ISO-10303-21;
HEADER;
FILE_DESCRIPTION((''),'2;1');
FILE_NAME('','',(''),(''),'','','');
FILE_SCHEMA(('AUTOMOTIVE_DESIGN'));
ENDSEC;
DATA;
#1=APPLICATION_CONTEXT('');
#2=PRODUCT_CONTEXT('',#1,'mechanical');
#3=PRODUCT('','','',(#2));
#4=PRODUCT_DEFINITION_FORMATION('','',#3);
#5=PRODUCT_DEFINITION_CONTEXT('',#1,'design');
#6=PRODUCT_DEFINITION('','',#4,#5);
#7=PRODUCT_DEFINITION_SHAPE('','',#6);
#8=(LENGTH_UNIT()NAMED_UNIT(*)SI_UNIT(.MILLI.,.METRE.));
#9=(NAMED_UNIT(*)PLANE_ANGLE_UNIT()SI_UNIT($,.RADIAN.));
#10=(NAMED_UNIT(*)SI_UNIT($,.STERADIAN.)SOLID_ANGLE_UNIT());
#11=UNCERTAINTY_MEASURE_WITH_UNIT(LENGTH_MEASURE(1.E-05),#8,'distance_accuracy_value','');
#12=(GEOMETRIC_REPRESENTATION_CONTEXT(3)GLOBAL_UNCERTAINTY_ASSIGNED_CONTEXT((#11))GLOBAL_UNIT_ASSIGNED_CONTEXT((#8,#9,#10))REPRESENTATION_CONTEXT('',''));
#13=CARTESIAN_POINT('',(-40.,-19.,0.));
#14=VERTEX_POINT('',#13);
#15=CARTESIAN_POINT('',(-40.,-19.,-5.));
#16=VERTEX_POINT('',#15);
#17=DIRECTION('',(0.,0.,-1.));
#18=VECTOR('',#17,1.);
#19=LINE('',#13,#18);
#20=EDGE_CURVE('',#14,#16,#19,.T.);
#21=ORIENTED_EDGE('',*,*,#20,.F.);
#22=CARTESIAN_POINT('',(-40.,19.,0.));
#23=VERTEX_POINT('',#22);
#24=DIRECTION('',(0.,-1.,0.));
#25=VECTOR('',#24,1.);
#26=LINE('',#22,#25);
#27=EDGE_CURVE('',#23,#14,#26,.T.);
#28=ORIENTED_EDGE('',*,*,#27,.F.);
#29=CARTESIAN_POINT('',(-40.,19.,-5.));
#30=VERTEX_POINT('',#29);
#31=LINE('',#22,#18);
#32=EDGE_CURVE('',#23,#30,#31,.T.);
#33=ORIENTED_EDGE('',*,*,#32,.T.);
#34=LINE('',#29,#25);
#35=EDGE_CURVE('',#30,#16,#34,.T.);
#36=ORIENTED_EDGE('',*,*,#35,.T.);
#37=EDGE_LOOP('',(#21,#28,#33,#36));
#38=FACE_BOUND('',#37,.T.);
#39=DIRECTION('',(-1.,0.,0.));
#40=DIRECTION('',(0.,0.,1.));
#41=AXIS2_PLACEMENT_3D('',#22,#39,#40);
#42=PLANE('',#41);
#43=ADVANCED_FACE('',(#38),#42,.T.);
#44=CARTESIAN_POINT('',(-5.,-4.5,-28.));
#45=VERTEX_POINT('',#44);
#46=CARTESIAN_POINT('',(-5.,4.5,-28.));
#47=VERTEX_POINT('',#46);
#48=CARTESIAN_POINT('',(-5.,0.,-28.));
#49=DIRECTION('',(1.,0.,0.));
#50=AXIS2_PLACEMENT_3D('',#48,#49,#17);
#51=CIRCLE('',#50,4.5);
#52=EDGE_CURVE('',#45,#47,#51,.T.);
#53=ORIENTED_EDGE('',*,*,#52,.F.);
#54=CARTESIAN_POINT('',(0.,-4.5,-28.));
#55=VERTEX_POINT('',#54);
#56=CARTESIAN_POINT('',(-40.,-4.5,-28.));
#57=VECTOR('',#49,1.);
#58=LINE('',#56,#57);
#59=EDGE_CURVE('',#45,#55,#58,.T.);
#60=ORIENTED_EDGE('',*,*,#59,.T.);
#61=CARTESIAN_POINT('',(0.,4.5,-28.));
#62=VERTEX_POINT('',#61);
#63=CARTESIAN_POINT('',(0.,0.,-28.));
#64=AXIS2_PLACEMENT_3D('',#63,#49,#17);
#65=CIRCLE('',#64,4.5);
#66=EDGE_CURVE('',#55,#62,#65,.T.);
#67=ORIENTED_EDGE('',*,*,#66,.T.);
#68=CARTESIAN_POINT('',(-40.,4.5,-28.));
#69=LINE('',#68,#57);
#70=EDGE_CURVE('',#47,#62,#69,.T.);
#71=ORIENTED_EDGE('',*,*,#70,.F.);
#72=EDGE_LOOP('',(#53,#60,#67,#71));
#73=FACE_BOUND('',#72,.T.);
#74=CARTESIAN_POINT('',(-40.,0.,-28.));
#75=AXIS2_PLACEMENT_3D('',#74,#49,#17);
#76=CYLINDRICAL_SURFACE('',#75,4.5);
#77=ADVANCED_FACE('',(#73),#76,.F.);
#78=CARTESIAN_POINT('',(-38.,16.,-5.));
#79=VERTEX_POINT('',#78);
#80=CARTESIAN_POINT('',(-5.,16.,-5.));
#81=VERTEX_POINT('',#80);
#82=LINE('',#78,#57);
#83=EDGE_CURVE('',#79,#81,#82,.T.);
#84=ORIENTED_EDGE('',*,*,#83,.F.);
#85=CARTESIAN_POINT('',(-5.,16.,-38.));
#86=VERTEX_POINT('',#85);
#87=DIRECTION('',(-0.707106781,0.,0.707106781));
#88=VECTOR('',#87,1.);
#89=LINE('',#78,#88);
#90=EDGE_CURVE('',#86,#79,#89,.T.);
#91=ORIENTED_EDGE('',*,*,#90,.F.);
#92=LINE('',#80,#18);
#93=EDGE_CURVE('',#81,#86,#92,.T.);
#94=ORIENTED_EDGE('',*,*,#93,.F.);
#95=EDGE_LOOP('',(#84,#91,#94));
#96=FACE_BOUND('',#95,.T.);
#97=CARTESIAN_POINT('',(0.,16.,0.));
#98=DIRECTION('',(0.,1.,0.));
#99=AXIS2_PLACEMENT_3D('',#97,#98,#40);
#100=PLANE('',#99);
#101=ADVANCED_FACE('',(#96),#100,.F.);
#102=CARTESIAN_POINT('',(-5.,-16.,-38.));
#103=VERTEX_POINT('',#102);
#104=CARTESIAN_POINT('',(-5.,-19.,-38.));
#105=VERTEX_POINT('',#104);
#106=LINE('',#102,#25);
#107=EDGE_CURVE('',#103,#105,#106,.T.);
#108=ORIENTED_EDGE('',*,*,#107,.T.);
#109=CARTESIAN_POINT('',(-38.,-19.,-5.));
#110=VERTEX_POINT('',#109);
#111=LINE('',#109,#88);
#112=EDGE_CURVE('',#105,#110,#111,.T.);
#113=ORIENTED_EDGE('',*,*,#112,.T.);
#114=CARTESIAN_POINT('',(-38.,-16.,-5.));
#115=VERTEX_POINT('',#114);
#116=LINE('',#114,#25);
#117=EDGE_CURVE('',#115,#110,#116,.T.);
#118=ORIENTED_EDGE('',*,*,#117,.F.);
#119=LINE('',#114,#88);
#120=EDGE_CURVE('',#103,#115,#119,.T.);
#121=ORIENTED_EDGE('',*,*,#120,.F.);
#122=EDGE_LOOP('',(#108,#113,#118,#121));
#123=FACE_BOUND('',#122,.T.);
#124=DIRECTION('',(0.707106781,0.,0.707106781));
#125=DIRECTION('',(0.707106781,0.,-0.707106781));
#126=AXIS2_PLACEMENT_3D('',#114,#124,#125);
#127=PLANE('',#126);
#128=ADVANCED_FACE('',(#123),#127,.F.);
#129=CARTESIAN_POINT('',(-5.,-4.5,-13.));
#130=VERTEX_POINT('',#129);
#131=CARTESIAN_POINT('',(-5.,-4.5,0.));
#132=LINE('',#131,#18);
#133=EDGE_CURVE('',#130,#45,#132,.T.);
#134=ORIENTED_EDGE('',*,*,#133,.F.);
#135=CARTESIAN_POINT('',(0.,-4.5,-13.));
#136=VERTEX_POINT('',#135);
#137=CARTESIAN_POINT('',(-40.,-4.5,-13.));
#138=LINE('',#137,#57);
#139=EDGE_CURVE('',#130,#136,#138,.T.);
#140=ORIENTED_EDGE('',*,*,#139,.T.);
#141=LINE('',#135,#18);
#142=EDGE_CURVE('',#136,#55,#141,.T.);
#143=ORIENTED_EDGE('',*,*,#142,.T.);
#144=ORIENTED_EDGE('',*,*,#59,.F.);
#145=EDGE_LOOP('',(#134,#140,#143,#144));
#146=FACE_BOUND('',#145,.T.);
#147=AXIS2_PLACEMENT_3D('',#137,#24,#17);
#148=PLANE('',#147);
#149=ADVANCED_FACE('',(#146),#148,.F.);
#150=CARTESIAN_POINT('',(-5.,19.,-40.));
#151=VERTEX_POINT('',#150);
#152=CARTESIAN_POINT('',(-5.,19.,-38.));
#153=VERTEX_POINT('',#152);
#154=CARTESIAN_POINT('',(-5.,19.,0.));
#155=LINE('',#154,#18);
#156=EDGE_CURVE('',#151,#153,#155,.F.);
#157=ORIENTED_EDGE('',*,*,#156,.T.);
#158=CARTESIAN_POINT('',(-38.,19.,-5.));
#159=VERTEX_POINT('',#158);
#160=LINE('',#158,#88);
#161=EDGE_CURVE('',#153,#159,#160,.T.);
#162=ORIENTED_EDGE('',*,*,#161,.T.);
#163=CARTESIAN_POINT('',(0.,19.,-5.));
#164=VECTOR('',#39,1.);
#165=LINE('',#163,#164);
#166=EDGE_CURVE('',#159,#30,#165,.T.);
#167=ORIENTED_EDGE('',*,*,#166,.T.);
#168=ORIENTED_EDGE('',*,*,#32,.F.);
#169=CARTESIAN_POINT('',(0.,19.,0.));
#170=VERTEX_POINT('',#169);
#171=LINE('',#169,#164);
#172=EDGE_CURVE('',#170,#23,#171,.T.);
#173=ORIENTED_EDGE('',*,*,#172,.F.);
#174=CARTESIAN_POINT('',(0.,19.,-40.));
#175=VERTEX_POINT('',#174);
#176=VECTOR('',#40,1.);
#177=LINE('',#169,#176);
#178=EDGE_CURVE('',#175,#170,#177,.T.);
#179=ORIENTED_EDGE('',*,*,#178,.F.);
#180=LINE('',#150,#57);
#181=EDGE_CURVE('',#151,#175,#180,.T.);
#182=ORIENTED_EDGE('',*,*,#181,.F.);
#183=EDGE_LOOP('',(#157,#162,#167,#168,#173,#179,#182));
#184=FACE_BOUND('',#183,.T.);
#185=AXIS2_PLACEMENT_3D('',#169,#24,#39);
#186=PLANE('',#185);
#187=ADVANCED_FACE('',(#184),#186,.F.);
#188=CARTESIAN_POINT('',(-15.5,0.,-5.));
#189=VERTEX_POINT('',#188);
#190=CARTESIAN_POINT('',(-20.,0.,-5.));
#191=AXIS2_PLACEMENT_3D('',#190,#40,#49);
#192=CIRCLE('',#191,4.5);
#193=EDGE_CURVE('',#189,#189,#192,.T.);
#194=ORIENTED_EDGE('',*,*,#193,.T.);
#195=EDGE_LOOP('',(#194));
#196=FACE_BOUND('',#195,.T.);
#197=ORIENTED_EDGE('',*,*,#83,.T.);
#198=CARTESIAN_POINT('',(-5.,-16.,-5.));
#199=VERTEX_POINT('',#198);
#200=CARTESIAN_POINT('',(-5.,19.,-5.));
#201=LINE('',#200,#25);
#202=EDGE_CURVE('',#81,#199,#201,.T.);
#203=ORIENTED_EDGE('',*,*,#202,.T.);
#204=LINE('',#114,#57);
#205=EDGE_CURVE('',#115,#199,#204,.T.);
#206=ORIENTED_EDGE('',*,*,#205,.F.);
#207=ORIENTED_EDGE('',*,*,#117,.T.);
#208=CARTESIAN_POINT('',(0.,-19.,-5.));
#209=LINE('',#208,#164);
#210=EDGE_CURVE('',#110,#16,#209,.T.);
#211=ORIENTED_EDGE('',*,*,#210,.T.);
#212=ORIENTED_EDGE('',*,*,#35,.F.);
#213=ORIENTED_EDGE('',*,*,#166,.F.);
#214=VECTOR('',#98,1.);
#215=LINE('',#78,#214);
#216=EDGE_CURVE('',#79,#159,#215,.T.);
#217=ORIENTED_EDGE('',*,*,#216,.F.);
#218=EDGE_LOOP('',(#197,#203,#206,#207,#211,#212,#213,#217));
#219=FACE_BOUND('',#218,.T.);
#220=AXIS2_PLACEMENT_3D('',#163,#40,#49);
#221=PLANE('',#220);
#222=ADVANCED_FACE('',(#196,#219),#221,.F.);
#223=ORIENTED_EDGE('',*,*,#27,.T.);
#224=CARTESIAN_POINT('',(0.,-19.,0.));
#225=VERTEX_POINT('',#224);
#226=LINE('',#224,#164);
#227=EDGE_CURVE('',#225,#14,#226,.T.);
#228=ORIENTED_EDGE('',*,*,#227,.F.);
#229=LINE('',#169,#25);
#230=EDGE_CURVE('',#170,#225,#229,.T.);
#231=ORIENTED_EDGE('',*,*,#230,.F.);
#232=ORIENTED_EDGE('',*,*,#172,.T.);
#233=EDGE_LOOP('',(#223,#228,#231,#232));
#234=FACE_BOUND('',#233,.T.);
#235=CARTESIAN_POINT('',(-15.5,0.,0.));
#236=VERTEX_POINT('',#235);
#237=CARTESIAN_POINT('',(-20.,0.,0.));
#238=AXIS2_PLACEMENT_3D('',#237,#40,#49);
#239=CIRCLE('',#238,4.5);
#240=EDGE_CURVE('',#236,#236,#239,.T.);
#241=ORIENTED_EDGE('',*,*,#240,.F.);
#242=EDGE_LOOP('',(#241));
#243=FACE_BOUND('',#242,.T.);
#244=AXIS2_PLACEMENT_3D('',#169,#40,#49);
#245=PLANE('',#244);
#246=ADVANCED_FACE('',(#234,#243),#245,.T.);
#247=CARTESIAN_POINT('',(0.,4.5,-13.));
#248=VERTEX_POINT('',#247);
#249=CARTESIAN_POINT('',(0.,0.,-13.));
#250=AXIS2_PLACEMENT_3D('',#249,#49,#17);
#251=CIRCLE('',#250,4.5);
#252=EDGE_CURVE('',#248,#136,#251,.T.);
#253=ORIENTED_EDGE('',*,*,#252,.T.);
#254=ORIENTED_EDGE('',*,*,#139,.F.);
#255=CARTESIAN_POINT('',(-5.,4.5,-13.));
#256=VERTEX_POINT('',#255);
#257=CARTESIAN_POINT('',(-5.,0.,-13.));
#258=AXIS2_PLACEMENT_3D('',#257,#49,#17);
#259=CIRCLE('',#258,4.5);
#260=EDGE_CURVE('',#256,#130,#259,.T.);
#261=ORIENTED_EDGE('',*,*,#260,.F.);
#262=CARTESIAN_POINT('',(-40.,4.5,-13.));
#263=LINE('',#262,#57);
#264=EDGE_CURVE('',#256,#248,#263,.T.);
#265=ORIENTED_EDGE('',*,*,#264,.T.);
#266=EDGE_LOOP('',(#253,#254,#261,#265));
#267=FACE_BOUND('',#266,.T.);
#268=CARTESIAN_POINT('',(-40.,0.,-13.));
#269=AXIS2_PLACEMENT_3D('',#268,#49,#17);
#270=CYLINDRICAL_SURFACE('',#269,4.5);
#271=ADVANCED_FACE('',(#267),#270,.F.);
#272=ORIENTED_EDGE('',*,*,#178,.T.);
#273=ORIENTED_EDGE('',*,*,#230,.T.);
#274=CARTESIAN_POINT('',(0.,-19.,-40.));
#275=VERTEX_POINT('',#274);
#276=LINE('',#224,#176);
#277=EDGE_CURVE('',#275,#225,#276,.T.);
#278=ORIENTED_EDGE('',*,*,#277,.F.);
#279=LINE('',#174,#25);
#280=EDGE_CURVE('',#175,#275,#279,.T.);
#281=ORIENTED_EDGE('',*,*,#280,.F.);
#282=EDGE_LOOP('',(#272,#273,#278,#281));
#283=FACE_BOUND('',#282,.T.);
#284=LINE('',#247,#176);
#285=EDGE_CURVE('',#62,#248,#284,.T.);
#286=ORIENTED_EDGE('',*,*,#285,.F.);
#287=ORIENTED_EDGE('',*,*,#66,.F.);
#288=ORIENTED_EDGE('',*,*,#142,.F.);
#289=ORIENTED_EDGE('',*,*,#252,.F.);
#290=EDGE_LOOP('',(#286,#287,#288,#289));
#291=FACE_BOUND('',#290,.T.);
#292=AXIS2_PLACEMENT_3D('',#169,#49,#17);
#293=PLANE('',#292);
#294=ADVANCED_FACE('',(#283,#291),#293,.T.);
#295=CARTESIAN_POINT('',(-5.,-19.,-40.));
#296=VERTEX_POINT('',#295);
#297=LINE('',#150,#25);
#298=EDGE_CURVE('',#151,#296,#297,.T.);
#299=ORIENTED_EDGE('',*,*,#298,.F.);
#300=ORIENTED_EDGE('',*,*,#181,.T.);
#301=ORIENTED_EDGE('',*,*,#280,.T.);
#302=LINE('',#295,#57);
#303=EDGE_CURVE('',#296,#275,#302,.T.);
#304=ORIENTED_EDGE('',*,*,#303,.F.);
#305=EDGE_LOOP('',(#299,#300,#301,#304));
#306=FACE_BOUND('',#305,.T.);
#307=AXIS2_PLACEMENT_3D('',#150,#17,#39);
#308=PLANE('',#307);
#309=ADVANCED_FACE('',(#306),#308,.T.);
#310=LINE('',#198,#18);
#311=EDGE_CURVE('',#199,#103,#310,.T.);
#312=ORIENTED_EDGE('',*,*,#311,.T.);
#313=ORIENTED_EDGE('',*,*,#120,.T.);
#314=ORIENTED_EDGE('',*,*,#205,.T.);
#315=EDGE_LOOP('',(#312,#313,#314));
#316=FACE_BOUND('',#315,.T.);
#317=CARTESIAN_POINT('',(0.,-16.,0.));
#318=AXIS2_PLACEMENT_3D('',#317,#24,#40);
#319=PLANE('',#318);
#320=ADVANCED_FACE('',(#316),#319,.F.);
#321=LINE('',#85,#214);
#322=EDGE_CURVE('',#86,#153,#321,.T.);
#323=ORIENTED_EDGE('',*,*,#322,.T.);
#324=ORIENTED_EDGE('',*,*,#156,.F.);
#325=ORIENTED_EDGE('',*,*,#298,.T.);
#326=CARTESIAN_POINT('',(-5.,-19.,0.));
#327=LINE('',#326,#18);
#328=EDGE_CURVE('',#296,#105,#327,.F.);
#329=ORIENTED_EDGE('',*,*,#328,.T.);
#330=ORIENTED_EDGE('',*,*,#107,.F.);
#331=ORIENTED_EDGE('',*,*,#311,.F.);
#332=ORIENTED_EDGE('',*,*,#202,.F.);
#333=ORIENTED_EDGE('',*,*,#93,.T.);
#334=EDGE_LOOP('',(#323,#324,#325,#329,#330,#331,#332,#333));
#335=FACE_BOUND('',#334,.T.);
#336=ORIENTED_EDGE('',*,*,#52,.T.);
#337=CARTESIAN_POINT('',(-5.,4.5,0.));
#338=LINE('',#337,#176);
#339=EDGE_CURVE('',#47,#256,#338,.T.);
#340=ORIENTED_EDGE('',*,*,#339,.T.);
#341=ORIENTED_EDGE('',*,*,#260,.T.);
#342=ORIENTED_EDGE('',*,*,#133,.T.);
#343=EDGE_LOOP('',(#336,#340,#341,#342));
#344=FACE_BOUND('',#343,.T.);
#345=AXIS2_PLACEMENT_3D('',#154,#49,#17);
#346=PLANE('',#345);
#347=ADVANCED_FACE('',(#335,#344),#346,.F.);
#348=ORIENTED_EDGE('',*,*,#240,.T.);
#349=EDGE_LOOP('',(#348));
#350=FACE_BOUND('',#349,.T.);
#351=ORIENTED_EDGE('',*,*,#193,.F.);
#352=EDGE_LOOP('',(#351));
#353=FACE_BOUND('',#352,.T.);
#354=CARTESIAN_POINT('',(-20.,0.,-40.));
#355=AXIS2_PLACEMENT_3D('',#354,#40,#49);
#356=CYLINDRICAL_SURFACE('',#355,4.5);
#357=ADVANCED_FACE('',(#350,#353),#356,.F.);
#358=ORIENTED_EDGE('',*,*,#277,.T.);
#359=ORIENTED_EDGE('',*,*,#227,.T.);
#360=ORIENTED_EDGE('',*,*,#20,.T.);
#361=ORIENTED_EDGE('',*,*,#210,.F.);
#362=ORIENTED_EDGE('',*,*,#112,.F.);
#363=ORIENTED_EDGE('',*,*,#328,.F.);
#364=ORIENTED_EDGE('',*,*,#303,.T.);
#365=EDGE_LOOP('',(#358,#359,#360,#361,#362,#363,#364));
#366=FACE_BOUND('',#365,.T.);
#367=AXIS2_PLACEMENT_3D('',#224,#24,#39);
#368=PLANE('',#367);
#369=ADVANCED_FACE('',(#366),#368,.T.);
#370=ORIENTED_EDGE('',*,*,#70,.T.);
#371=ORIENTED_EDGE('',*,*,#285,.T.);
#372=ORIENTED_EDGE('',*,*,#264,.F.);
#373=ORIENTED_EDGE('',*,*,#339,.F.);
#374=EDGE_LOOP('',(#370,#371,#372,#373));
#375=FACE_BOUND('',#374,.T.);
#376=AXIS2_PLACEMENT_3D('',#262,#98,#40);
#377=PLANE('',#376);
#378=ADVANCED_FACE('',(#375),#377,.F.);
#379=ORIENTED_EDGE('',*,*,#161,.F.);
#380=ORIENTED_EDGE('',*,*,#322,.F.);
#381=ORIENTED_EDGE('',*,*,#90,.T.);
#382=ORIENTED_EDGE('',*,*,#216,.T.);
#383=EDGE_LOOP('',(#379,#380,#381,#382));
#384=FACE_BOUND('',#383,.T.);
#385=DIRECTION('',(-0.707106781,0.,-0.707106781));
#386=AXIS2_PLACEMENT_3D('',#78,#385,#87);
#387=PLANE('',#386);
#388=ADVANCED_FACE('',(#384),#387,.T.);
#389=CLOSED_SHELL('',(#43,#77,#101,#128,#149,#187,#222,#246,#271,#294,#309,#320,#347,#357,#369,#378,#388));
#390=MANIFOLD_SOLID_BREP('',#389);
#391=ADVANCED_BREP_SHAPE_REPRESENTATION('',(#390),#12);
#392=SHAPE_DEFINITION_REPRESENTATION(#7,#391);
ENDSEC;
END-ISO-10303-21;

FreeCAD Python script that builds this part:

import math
import FreeCAD as App
import Part
import Sketcher
from FreeCAD import Vector

doc = App.newDocument("Part")
body = doc.addObject("PartDesign::Body", "Body")

# Sketch on XZ plane
sketch1 = body.newObject("Sketcher::SketchObject", "Sketch")
sketch1.AttachmentSupport = (doc.getObject("XZ_Plane"), [""])
sketch1.MapMode = "FlatFace"
sketch1.addGeometry([
    Part.LineSegment(Vector(-40, 0, 0), Vector(0, 0, 0)),  # 0
    Part.LineSegment(Vector(0, 0, 0), Vector(0, -40, 0)),  # 1
    Part.LineSegment(Vector(0, -40, 0), Vector(-5, -40, 0)),  # 2
    Part.LineSegment(Vector(-5, -40, 0), Vector(-5, -5, 0)),  # 3
    Part.LineSegment(Vector(-5, -5, 0), Vector(-40, -5, 0)),  # 4
    Part.LineSegment(Vector(-40, -5, 0), Vector(-40, 0, 0)),  # 5
], False)
sketch1.addConstraint([
    Sketcher.Constraint("Coincident", 0, 2, 1, 1),
    Sketcher.Constraint("Coincident", 1, 2, 2, 1),
    Sketcher.Constraint("Coincident", 2, 2, 3, 1),
    Sketcher.Constraint("Coincident", 3, 2, 4, 1),
    Sketcher.Constraint("Coincident", 4, 2, 5, 1),
    Sketcher.Constraint("Coincident", 5, 2, 0, 1),
    Sketcher.Constraint("Horizontal", 0),
    Sketcher.Constraint("Vertical", 1),
    Sketcher.Constraint("Horizontal", 2),
    Sketcher.Constraint("Vertical", 3),
    Sketcher.Constraint("Horizontal", 4),
    Sketcher.Constraint("Vertical", 5),
    Sketcher.Constraint("Coincident", 0, 2, -1, 1),
    Sketcher.Constraint("Equal", 0, 1),
    Sketcher.Constraint("Equal", 4, 3),
    Sketcher.Constraint("DistanceX", 0, 1, 0, 2, 40.0),
    Sketcher.Constraint("DistanceX", 2, 2, 2, 1, 5.0),
])
pad1 = body.newObject("PartDesign::Pad", "Pad")
pad1.Profile = sketch1
pad1.Length = 38
pad1.Midplane = True

# Sketch on YZ plane
sketch2 = body.newObject("Sketcher::SketchObject", "Sketch001")
sketch2.AttachmentSupport = (doc.getObject("YZ_Plane"), [""])
sketch2.MapMode = "FlatFace"
sketch2.addGeometry([
    Part.LineSegment(Vector(4.5, -28, 0), Vector(4.5, -13, 0)),
    Part.ArcOfCircle(Part.Circle(Vector(0, -13, 0), Vector(0, 0, 1), 4.5), math.radians(0), math.radians(180)),
    Part.LineSegment(Vector(-4.5, -13, 0), Vector(-4.5, -28, 0)),
    Part.ArcOfCircle(Part.Circle(Vector(0, -28, 0), Vector(0, 0, 1), 4.5), math.radians(180), math.radians(360)),
], False)
sketch2.addConstraint([
    Sketcher.Constraint("Tangent", 0, 2, 1, 1),
    Sketcher.Constraint("Tangent", 1, 2, 2, 1),
    Sketcher.Constraint("Tangent", 2, 2, 3, 1),
    Sketcher.Constraint("Tangent", 3, 2, 0, 1),
    Sketcher.Constraint("Vertical", 0),
    Sketcher.Constraint("Vertical", 2),
    Sketcher.Constraint("PointOnObject", 1, 3, -2),
    Sketcher.Constraint("Radius", 1, 4.5),
    Sketcher.Constraint("DistanceY", 0, 1, 0, 2, 15.0),
    Sketcher.Constraint("DistanceY", 1, 3, -1, 1, 13.0),
])
pocket1 = body.newObject("PartDesign::Pocket", "Pocket")
pocket1.Profile = sketch2
pocket1.Type = "ThroughAll"

# Sketch on XY plane
sketch3 = body.newObject("Sketcher::SketchObject", "Sketch002")
sketch3.AttachmentSupport = (doc.getObject("XY_Plane"), [""])
sketch3.MapMode = "FlatFace"
sketch3.addGeometry(Part.Circle(Vector(-20, 0, 0), Vector(0, 0, 1), 4.5), False)
sketch3.addConstraint([
    Sketcher.Constraint("PointOnObject", 0, 3, -1),
    Sketcher.Constraint("Diameter", 0, 9.0),
    Sketcher.Constraint("DistanceX", 0, 3, -1, 1, 20.0),
])
pocket2 = body.newObject("PartDesign::Pocket", "Pocket001")
pocket2.Profile = sketch3
pocket2.Type = "ThroughAll"

# Sketch on XZ plane
sketch4 = body.newObject("Sketcher::SketchObject", "Sketch003")
sketch4.AttachmentSupport = (doc.getObject("XZ_Plane"), [""])
sketch4.MapMode = "FlatFace"
sketch4.AttachmentOffset = App.Placement(Vector(0, 0, -19), App.Rotation())
sketch4.addGeometry([
    Part.LineSegment(Vector(-5, -38, 0), Vector(-38, -5, 0)),
    Part.LineSegment(Vector(-38, -5, 0), Vector(-5, -5, 0)),
    Part.LineSegment(Vector(-5, -5, 0), Vector(-5, -38, 0)),
], False)
sketch4.addConstraint([
    Sketcher.Constraint("Coincident", 0, 2, 1, 1),
    Sketcher.Constraint("Coincident", 1, 2, 2, 1),
    Sketcher.Constraint("Coincident", 2, 2, 0, 1),
    Sketcher.Constraint("Horizontal", 1),
    Sketcher.Constraint("Vertical", 2),
    Sketcher.Constraint("Equal", 1, 2),
    Sketcher.Constraint("DistanceX", 1, 1, 1, 2, 33.0),
    Sketcher.Constraint("DistanceX", 0, 2, -1, 1, 38.0),
    Sketcher.Constraint("DistanceY", 0, 2, -1, 1, 5.0),
])
pad2 = body.newObject("PartDesign::Pad", "Pad001")
pad2.Profile = sketch4
pad2.Length = 3
doc.recompute()

mirrored = body.newObject("PartDesign::Mirrored", "Mirrored")
mirrored.Originals = [pad2]
mirrored.MirrorPlane = (doc.getObject("XZ_Plane"), [""])
body.Tip = mirrored

doc.recompute()
